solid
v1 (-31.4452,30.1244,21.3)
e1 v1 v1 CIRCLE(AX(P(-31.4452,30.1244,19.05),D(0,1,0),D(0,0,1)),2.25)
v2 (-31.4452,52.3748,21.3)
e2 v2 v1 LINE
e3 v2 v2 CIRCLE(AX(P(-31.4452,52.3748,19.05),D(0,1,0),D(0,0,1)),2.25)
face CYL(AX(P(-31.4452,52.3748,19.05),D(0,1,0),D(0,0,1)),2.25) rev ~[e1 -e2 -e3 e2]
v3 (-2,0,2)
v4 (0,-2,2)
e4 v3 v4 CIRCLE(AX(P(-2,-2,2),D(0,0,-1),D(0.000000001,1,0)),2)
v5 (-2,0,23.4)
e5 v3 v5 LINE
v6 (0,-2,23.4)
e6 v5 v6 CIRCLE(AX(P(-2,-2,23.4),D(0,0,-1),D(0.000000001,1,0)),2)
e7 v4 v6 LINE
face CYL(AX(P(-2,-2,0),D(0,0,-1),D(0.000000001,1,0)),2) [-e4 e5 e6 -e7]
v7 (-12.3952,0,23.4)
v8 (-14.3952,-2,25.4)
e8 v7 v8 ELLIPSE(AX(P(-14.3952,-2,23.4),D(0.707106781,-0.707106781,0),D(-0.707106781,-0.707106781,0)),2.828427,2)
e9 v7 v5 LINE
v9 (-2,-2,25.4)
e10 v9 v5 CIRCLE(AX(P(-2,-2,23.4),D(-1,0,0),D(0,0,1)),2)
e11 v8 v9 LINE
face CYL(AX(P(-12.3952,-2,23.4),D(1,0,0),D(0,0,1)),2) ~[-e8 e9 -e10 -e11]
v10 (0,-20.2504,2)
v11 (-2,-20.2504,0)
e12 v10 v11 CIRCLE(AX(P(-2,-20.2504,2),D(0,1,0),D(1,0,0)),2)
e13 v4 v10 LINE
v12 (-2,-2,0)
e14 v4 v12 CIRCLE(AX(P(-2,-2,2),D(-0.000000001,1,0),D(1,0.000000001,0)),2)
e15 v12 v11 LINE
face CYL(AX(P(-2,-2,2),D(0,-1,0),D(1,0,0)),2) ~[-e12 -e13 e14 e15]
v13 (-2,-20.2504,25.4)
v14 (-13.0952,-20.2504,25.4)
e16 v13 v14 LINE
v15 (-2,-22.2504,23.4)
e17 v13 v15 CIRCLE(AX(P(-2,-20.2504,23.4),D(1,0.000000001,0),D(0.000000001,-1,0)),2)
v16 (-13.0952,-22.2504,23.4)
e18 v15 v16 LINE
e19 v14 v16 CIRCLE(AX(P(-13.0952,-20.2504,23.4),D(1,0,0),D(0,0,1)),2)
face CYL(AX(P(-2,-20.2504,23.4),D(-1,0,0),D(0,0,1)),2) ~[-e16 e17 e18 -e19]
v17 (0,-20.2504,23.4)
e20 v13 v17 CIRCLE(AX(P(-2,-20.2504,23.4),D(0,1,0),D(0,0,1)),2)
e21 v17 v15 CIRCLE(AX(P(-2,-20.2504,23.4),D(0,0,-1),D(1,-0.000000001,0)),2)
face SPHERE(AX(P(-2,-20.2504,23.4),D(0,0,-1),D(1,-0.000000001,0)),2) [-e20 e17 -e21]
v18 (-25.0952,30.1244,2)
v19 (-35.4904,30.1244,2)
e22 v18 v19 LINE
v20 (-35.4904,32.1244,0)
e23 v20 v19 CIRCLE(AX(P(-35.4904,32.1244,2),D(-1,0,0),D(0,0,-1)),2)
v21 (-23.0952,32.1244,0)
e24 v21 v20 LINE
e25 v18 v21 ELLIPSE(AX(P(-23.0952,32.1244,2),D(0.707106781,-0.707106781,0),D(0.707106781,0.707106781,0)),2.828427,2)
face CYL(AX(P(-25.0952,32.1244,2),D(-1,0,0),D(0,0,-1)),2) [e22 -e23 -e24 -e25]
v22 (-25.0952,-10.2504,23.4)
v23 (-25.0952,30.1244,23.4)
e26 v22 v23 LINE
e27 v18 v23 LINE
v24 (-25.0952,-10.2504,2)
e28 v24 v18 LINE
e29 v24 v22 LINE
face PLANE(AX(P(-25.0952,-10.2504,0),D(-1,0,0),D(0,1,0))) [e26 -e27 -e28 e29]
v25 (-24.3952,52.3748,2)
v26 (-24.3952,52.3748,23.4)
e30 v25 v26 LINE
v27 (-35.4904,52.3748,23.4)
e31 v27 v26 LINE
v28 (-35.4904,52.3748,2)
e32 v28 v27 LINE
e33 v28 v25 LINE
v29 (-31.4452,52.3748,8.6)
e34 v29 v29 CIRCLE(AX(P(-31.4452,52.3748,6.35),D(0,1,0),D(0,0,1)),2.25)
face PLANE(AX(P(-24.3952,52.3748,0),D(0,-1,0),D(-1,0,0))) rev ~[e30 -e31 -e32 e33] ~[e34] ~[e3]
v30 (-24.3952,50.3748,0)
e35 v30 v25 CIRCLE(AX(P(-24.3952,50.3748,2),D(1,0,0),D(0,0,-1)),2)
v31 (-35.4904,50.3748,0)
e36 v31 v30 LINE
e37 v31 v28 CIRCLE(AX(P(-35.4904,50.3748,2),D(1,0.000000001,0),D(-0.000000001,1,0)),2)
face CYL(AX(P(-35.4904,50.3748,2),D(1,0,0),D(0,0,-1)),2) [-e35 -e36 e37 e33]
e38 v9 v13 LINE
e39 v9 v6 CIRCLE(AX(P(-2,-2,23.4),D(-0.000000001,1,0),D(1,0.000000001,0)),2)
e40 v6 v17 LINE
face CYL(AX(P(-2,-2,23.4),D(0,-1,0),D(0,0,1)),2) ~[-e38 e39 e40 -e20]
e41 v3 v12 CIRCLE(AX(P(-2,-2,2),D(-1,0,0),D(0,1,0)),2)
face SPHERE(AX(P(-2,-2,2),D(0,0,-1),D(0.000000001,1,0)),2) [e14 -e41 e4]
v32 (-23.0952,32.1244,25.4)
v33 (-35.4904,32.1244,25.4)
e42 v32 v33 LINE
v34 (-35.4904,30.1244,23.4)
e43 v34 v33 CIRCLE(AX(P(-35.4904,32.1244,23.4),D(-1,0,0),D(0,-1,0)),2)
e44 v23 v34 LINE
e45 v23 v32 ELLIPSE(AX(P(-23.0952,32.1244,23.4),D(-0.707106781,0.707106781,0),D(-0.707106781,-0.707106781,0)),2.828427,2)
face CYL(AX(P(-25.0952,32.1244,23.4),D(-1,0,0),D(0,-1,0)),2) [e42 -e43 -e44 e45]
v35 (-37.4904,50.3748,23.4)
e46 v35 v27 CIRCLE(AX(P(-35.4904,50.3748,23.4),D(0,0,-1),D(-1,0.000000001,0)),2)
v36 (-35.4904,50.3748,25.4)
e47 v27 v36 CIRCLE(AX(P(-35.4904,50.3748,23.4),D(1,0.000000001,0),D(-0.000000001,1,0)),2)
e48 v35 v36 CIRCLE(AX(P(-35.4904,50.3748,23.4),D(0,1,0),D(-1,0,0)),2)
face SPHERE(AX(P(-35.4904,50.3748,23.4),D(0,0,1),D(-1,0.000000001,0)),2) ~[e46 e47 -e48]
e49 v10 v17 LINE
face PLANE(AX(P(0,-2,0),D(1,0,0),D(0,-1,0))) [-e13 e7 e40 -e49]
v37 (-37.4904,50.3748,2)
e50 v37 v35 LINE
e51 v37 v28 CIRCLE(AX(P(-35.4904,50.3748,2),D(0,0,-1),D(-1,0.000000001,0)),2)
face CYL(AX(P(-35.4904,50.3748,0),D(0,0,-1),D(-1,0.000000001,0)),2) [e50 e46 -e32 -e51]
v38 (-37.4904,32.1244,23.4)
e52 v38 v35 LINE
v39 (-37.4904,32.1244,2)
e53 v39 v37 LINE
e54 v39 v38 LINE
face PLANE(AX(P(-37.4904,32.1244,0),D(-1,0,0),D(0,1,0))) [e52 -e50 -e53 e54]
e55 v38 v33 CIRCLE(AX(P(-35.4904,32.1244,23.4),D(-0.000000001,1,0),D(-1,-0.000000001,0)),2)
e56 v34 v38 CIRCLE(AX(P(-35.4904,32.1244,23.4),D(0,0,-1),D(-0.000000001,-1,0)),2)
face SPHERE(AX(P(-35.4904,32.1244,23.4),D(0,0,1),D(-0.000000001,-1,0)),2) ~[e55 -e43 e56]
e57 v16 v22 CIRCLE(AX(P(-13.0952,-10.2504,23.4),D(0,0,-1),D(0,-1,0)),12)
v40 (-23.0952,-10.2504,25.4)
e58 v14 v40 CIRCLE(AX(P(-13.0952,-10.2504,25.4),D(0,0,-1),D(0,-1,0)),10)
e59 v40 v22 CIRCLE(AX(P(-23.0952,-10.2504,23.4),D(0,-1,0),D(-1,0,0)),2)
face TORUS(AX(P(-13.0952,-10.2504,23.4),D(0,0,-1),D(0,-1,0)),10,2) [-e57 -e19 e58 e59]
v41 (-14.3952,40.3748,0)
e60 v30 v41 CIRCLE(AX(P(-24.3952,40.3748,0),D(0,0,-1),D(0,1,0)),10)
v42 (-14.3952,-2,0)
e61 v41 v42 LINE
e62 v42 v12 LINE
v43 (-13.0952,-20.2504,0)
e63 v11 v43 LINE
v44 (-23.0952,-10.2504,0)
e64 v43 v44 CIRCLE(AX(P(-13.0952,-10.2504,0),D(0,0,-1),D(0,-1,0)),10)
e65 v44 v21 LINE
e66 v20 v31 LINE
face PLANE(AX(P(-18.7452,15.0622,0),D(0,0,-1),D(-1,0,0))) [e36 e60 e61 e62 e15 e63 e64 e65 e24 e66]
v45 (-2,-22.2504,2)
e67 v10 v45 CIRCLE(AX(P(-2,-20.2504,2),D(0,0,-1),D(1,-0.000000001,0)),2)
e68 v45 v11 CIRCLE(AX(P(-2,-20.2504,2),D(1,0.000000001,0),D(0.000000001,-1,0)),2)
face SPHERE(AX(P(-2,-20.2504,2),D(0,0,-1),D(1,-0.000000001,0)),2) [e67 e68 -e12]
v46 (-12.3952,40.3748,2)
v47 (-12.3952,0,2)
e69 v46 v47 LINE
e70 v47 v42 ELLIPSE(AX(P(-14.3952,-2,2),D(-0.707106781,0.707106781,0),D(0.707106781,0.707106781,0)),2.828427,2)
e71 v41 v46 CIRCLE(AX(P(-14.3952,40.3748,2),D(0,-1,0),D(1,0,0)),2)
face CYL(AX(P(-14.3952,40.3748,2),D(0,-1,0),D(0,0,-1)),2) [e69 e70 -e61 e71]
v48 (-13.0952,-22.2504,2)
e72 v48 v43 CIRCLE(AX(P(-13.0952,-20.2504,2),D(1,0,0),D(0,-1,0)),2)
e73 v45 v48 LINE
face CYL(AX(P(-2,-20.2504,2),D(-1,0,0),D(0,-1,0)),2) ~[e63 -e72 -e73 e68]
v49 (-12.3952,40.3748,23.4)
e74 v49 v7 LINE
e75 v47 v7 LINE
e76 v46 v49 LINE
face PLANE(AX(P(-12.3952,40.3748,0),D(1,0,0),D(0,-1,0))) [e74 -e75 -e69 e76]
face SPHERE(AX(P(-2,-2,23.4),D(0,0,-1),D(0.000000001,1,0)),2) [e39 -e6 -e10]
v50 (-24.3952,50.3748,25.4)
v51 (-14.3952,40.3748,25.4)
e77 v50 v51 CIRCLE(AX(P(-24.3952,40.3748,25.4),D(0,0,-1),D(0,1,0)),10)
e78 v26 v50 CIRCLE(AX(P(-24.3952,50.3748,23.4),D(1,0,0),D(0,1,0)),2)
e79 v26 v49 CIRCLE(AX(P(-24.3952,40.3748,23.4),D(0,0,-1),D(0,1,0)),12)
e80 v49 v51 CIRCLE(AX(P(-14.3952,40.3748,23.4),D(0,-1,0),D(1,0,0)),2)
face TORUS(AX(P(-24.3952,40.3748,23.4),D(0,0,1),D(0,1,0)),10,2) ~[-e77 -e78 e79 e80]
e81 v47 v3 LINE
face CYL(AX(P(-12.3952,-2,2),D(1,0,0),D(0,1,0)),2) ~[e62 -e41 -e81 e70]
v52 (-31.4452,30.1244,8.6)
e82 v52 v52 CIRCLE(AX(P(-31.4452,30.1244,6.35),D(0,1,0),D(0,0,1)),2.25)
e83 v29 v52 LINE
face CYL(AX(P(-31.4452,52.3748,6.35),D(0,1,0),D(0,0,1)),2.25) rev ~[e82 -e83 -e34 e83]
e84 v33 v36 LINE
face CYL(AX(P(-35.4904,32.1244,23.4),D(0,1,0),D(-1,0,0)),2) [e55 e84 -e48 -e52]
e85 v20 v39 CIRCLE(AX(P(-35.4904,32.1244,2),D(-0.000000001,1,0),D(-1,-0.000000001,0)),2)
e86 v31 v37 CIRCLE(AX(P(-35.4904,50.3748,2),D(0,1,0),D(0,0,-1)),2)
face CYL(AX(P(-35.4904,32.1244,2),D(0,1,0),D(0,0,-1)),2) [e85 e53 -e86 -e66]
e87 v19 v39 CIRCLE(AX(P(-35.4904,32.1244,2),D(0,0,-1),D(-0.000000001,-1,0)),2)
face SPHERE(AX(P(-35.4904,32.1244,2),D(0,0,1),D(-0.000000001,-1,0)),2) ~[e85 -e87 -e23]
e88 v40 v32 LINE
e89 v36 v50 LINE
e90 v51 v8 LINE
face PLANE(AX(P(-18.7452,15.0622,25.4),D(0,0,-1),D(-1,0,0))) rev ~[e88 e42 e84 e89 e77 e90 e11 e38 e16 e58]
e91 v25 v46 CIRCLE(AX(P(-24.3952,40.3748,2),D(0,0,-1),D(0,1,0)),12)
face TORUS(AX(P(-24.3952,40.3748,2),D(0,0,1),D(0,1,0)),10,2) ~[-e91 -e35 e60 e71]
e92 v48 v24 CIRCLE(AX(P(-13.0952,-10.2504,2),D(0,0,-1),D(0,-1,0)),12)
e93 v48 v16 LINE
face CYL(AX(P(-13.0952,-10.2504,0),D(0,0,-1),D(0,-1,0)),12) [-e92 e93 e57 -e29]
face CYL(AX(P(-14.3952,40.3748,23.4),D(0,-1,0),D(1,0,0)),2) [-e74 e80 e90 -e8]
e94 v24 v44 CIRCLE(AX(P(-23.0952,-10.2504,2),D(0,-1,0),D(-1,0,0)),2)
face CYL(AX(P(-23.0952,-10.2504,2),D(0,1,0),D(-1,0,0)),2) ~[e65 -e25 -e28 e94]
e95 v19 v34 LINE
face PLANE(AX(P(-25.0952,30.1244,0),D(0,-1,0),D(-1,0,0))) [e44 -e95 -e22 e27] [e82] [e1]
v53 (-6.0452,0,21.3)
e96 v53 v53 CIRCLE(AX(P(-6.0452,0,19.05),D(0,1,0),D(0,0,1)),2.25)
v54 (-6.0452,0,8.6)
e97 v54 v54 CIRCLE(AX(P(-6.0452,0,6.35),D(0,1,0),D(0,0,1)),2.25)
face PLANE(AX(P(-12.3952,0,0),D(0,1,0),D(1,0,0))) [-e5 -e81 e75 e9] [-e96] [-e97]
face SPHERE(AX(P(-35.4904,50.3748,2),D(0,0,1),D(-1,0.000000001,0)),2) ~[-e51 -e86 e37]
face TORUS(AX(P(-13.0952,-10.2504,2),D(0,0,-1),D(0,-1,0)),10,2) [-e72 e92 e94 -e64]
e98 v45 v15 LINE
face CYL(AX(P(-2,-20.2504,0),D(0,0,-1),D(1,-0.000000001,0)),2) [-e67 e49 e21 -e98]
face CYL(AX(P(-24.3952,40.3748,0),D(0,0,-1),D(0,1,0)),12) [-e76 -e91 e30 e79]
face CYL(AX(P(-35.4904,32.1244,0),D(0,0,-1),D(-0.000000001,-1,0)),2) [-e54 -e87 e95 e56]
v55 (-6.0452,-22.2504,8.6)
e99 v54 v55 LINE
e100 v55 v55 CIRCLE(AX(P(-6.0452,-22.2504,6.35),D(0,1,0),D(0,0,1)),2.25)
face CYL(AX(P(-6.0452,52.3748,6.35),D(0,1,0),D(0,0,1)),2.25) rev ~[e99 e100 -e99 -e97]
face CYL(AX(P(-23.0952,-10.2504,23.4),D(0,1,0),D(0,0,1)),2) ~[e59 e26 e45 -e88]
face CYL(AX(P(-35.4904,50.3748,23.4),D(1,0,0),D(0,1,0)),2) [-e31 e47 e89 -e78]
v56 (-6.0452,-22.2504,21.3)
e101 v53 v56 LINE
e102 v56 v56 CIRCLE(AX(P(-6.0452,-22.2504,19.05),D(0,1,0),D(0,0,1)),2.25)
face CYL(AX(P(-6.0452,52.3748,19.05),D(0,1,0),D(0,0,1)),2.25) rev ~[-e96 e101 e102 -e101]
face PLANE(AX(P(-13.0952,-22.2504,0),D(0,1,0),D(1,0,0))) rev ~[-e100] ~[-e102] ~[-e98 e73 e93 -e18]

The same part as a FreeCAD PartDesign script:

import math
import FreeCAD as App
import Part
import Sketcher
Q = App.Units.Quantity


def edges_at(feature, points):
    """Names of the edges that pass closest to the given points."""
    edges = feature.Shape.Edges
    near = lambda p: min(range(len(edges)), key=lambda i: edges[i].distToShape(Part.Vertex(*p))[0])
    return sorted({f"Edge{near(p) + 1}" for p in points})

doc = App.newDocument("Part")
body = doc.addObject("PartDesign::Body", "Body")

sketch1 = body.newObject("Sketcher::SketchObject", "Sketch")
sketch1.AttachmentSupport = (doc.getObject("XY_Plane"), [""])
sketch1.MapMode = "FlatFace"
sketch1.addGeometry(Part.LineSegment(App.Vector(-12.4, 0, 0), App.Vector(-12.4, 40.4, 0)), False)
sketch1.addGeometry(Part.ArcOfCircle(Part.Circle(App.Vector(-24.4, 40.4, 0), App.Vector(0, 0, 1), 12), math.radians(0), math.radians(90)), False)
sketch1.addGeometry(Part.LineSegment(App.Vector(-24.4, 52.4, 0), App.Vector(-35.5, 52.4, 0)), False)
sketch1.addGeometry(Part.ArcOfCircle(Part.Circle(App.Vector(-35.5, 50.4, 0), App.Vector(0, 0, 1), 2), math.radians(90), math.radians(180)), False)
sketch1.addGeometry(Part.LineSegment(App.Vector(-37.5, 50.4, 0), App.Vector(-37.5, 32.1, 0)), False)
sketch1.addGeometry(Part.ArcOfCircle(Part.Circle(App.Vector(-35.5, 32.1, 0), App.Vector(0, 0, 1), 2), math.radians(-180), math.radians(-90)), False)
sketch1.addGeometry(Part.LineSegment(App.Vector(-35.5, 30.1, 0), App.Vector(-25.1, 30.1, 0)), False)
sketch1.addGeometry(Part.LineSegment(App.Vector(-25.1, 30.1, 0), App.Vector(-25.1, -10.3, 0)), False)
sketch1.addGeometry(Part.ArcOfCircle(Part.Circle(App.Vector(-13.1, -10.3, 0), App.Vector(0, 0, 1), 12), math.radians(-180), math.radians(-90)), False)
sketch1.addGeometry(Part.LineSegment(App.Vector(-13.1, -22.3, 0), App.Vector(-2, -22.3, 0)), False)
sketch1.addGeometry(Part.ArcOfCircle(Part.Circle(App.Vector(-2, -20.3, 0), App.Vector(0, 0, 1), 2), math.radians(-90), math.radians(0)), False)
sketch1.addGeometry(Part.LineSegment(App.Vector(0, -20.3, 0), App.Vector(0, -2, 0)), False)
sketch1.addGeometry(Part.ArcOfCircle(Part.Circle(App.Vector(-2, -2, 0), App.Vector(0, 0, 1), 2), math.radians(0), math.radians(90)), False)
sketch1.addGeometry(Part.LineSegment(App.Vector(-2, 0, 0), App.Vector(-12.4, 0, 0)), False)
sketch1.addConstraint(Sketcher.Constraint("Tangent", 0, 2, 1, 1))
sketch1.addConstraint(Sketcher.Constraint("Tangent", 1, 2, 2, 1))
sketch1.addConstraint(Sketcher.Constraint("Tangent", 2, 2, 3, 1))
sketch1.addConstraint(Sketcher.Constraint("Tangent", 3, 2, 4, 1))
sketch1.addConstraint(Sketcher.Constraint("Tangent", 4, 2, 5, 1))
sketch1.addConstraint(Sketcher.Constraint("Tangent", 5, 2, 6, 1))
sketch1.addConstraint(Sketcher.Constraint("Coincident", 6, 2, 7, 1))
sketch1.addConstraint(Sketcher.Constraint("Tangent", 7, 2, 8, 1))
sketch1.addConstraint(Sketcher.Constraint("Tangent", 8, 2, 9, 1))
sketch1.addConstraint(Sketcher.Constraint("Tangent", 9, 2, 10, 1))
sketch1.addConstraint(Sketcher.Constraint("Tangent", 10, 2, 11, 1))
sketch1.addConstraint(Sketcher.Constraint("Tangent", 11, 2, 12, 1))
sketch1.addConstraint(Sketcher.Constraint("Tangent", 12, 2, 13, 1))
sketch1.addConstraint(Sketcher.Constraint("Coincident", 13, 2, 0, 1))
sketch1.addConstraint(Sketcher.Constraint("Vertical", 0))
sketch1.addConstraint(Sketcher.Constraint("Horizontal", 2))
sketch1.addConstraint(Sketcher.Constraint("Vertical", 4))
sketch1.addConstraint(Sketcher.Constraint("Horizontal", 6))
sketch1.addConstraint(Sketcher.Constraint("Vertical", 7))
sketch1.addConstraint(Sketcher.Constraint("Horizontal", 9))
sketch1.addConstraint(Sketcher.Constraint("Vertical", 11))
sketch1.addConstraint(Sketcher.Constraint("Horizontal", 13))
sketch1.addConstraint(Sketcher.Constraint("Equal", 3, 5))
sketch1.addConstraint(Sketcher.Constraint("Equal", 1, 8))
sketch1.addConstraint(Sketcher.Constraint("Equal", 5, 10))
sketch1.addConstraint(Sketcher.Constraint("Equal", 10, 12))
sketch1.addConstraint(Sketcher.Constraint("PointOnObject", 10, 2, -2))
sketch1.addConstraint(Sketcher.Constraint("PointOnObject", 12, 2, -1))
sketch1.addConstraint(Sketcher.Constraint("Equal", 2, 9))
sketch1.addConstraint(Sketcher.Constraint("Equal", 0, 7))
sketch1.addConstraint(Sketcher.Constraint("Radius", 1, Q("12 mm")))
sketch1.addConstraint(Sketcher.Constraint("Radius", 3, Q("2 mm")))
sketch1.addConstraint(Sketcher.Constraint("DistanceX", 1, 3, 8, 3, Q("11.3 mm")))
sketch1.addConstraint(Sketcher.Constraint("DistanceX", 2, 2, 2, 1, Q("11.0952 mm")))
sketch1.addConstraint(Sketcher.Constraint("DistanceY", 0, 1, 0, 2, Q("40.3748 mm")))
sketch1.addConstraint(Sketcher.Constraint("DistanceY", 4, 2, 4, 1, Q("18.2504 mm")))
pad1 = body.newObject("PartDesign::Pad", "Pad")
pad1.Profile = sketch1
pad1.Length = 25.4

sketch2 = body.newObject("Sketcher::SketchObject", "Sketch001")
sketch2.AttachmentSupport = (doc.getObject("XZ_Plane"), [""])
sketch2.MapMode = "FlatFace"
sketch2.AttachmentOffset = App.Placement(App.Vector(0, 0, -52.3748), App.Rotation())
sketch2.addGeometry(Part.Circle(App.Vector(-31.4, 6.3, 0), App.Vector(0, 0, 1), 2.2), False)
sketch2.addGeometry(Part.Circle(App.Vector(-31.4, 19.1, 0), App.Vector(0, 0, 1), 2.2), False)
sketch2.addGeometry(Part.Circle(App.Vector(-6, 6.3, 0), App.Vector(0, 0, 1), 2.2), False)
sketch2.addGeometry(Part.Circle(App.Vector(-6, 19.1, 0), App.Vector(0, 0, 1), 2.2), False)
sketch2.addConstraint(Sketcher.Constraint("Equal", 0, 1))
sketch2.addConstraint(Sketcher.Constraint("Equal", 1, 2))
sketch2.addConstraint(Sketcher.Constraint("Equal", 2, 3))
sketch2.addConstraint(Sketcher.Constraint("Horizontal", 0, 3, 2, 3))
sketch2.addConstraint(Sketcher.Constraint("Horizontal", 1, 3, 3, 3))
sketch2.addConstraint(Sketcher.Constraint("Vertical", 0, 3, 1, 3))
sketch2.addConstraint(Sketcher.Constraint("Vertical", 2, 3, 3, 3))
sketch2.addConstraint(Sketcher.Constraint("Diameter", 0, Q("4.5 mm")))
sketch2.addConstraint(Sketcher.Constraint("DistanceY", 0, 3, 1, 3, Q("12.7 mm")))
sketch2.addConstraint(Sketcher.Constraint("DistanceX", 0, 3, 2, 3, Q("25.4 mm")))
sketch2.addConstraint(Sketcher.Constraint("DistanceY", -1, 1, 0, 3, Q("6.35 mm")))
sketch2.addConstraint(Sketcher.Constraint("DistanceX", 0, 3, -1, 1, Q("31.4452 mm")))
pocket1 = body.newObject("PartDesign::Pocket", "Pocket")
pocket1.Profile = sketch2
pocket1.Type = "ThroughAll"
pocket1.Reversed = True
doc.recompute()

fillet = body.newObject("PartDesign::Fillet", "Fillet")
fillet.Base = (pocket1, edges_at(pocket1, [
    (-15.91, 48.86, 25.4),
    (-29.943, 52.375, 25.4),
    (-7.198, 0, 0),
    (-0.586, -0.586, 0),
    (0, -11.125, 0),
    (-0.586, -21.665, 0),
    (-7.548, -22.25, 0),
    (-21.58, -18.736, 0),
    (-25.095, 9.937, 0),
    (-30.293, 30.124, 0),
    (-36.905, 30.71, 0),
    (-37.49, 41.25, 0),
    (-36.905, 51.789, 0),
    (-29.943, 52.375, 0),
    (-15.91, 48.86, 0),
    (-36.905, 51.789, 25.4),
    (-12.395, 20.187, 0),
    (-37.49, 41.25, 25.4),
    (-36.905, 30.71, 25.4),
    (-30.293, 30.124, 25.4),
    (-25.095, 9.937, 25.4),
    (-21.58, -18.736, 25.4),
    (-12.395, 20.187, 25.4),
    (-7.548, -22.25, 25.4),
    (-0.586, -21.665, 25.4),
    (0, -11.125, 25.4),
    (-0.586, -0.586, 25.4),
    (-7.198, 0, 25.4),
]))
fillet.Radius = 2

doc.recompute()
